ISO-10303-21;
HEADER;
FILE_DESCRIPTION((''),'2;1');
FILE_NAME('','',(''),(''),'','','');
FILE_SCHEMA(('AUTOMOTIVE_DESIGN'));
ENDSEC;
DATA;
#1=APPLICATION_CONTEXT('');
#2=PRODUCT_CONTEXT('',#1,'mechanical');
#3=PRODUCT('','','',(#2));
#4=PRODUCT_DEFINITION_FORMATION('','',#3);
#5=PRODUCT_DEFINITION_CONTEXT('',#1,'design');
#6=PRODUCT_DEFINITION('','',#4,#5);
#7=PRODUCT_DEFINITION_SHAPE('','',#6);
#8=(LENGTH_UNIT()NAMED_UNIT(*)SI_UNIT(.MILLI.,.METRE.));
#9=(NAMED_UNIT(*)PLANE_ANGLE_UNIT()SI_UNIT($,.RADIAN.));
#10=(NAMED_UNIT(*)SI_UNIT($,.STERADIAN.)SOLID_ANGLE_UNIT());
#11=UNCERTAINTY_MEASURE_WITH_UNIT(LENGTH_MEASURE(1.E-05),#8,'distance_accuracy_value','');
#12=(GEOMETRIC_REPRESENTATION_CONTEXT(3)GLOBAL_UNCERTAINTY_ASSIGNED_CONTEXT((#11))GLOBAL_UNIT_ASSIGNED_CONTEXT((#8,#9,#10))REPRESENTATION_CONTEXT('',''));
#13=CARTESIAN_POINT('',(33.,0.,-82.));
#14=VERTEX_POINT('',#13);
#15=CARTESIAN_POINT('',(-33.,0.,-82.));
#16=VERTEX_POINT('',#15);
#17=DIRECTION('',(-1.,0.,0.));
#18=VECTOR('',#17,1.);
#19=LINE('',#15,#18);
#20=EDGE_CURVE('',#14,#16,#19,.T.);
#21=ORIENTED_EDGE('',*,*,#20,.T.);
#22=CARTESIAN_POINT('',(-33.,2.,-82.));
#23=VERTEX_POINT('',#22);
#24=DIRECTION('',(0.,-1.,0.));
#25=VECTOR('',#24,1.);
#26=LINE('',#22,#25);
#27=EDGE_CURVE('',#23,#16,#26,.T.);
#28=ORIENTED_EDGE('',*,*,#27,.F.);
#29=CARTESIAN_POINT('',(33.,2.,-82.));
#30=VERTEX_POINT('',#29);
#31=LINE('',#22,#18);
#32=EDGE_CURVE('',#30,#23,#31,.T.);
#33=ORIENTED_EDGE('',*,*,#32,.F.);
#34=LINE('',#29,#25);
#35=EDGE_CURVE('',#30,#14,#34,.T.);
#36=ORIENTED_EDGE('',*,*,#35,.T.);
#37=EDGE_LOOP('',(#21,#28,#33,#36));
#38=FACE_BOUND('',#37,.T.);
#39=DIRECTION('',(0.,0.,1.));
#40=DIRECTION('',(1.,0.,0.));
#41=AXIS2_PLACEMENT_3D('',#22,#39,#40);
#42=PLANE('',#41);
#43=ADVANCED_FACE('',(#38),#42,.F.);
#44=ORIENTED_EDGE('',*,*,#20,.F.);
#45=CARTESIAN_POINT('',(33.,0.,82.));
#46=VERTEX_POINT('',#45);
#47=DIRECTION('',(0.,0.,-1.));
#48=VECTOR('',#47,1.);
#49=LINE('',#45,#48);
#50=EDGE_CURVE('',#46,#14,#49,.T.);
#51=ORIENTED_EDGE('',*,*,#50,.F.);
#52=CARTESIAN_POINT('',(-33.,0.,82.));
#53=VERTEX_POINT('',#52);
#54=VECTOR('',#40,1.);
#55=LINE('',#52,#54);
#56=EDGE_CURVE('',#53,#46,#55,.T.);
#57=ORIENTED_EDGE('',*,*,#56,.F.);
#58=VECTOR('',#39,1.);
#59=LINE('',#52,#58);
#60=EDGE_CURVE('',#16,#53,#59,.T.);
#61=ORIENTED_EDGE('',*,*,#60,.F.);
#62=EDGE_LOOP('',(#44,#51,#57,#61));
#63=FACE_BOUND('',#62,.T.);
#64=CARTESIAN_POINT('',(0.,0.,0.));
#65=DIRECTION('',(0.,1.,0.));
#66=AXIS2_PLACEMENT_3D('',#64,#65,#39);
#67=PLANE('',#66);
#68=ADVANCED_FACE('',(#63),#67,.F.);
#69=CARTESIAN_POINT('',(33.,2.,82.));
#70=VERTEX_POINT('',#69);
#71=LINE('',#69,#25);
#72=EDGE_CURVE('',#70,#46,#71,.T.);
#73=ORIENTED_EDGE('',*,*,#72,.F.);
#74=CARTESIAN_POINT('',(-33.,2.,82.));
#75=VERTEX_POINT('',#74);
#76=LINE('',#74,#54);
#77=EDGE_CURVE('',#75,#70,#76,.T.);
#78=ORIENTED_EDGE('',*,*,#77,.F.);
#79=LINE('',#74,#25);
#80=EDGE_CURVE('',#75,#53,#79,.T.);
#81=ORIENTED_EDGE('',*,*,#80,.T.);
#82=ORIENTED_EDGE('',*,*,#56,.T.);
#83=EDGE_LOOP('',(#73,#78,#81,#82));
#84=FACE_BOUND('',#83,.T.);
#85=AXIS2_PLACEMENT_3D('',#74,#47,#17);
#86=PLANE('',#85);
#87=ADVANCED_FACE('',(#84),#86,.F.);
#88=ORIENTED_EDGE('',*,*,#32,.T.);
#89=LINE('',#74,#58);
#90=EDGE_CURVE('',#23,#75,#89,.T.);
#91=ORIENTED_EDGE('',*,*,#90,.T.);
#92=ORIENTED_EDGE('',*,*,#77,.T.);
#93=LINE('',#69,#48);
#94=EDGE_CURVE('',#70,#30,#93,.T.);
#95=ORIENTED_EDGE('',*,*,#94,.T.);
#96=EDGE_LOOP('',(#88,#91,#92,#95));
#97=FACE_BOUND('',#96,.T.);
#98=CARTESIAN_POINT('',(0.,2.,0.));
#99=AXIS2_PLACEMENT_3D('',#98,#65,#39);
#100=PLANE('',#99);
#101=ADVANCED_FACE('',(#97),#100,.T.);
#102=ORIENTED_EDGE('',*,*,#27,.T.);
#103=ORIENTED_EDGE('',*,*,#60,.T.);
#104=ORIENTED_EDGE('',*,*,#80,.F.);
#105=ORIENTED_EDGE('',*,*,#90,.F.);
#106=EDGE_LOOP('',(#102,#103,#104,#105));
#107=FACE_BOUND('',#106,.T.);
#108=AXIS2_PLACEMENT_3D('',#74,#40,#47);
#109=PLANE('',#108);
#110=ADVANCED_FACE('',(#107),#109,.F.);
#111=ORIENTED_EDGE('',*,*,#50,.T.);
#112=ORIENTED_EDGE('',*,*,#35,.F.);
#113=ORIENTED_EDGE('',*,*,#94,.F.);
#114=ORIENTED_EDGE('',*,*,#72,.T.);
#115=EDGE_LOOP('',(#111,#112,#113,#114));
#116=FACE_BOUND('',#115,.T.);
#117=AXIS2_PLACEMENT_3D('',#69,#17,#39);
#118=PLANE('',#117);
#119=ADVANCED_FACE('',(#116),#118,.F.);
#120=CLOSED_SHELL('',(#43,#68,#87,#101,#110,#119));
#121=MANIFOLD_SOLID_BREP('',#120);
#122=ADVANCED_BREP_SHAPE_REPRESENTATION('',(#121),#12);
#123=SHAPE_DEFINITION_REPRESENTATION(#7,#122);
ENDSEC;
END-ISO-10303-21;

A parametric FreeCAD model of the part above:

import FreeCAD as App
import Part
import Sketcher
from FreeCAD import Vector
Q = App.Units.Quantity


def add_polygon(sketch, points):
    """Adds a closed chain of lines whose ends are joined by coincident constraints."""
    first, n = sketch.GeometryCount, len(points)
    for a, b in zip(points, points[1:] + points[:1]):
        sketch.addGeometry(Part.LineSegment(App.Vector(*a, 0), App.Vector(*b, 0)), False)
    for i in range(n):
        sketch.addConstraint(Sketcher.Constraint("Coincident", first + i, 2, first + (i + 1) % n, 1))

doc = App.newDocument("Part")
params = doc.addObject("Spreadsheet::Sheet", "Params")
for row, (alias, value) in enumerate([
    ("sketch1_width", "66 mm"),
    ("sketch1_height", "164 mm"),
    ("pad1_length", "2 mm"),
], start=1):
    params.set(f"A{row}", alias)
    params.set(f"B{row}", "=" + value)
    params.setAlias(f"B{row}", alias)

body = doc.addObject("PartDesign::Body", "Body")

# Sketch on XZ plane
sketch1 = body.newObject("Sketcher::SketchObject", "Sketch")
sketch1.AttachmentSupport = (doc.getObject("XZ_Plane"), [""])
sketch1.MapMode = "FlatFace"
add_polygon(sketch1, [(-33, -82), (-33, 82), (33, 82), (33, -82)])  # lines 0-3
sketch1.addConstraint(Sketcher.Constraint("Vertical", 0))
sketch1.addConstraint(Sketcher.Constraint("Horizontal", 1))
sketch1.addConstraint(Sketcher.Constraint("Vertical", 2))
sketch1.addConstraint(Sketcher.Constraint("Horizontal", 3))
sketch1.addConstraint(Sketcher.Constraint("Symmetric", 0, 2, 2, 2, -1, 1))
sketch1.addConstraint(Sketcher.Constraint("DistanceX", 1, 1, 1, 2, Q("66 mm")))
sketch1.addConstraint(Sketcher.Constraint("DistanceY", 0, 1, 0, 2, Q("164 mm")))
sketch1.setExpression("Constraints[9]", "Params.sketch1_width")
sketch1.setExpression("Constraints[10]", "Params.sketch1_height")
pad1 = body.newObject("PartDesign::Pad", "Pad")
pad1.Profile = sketch1
pad1.setExpression("Length", "Params.pad1_length")
pad1.Reversed = True

doc.recompute()
